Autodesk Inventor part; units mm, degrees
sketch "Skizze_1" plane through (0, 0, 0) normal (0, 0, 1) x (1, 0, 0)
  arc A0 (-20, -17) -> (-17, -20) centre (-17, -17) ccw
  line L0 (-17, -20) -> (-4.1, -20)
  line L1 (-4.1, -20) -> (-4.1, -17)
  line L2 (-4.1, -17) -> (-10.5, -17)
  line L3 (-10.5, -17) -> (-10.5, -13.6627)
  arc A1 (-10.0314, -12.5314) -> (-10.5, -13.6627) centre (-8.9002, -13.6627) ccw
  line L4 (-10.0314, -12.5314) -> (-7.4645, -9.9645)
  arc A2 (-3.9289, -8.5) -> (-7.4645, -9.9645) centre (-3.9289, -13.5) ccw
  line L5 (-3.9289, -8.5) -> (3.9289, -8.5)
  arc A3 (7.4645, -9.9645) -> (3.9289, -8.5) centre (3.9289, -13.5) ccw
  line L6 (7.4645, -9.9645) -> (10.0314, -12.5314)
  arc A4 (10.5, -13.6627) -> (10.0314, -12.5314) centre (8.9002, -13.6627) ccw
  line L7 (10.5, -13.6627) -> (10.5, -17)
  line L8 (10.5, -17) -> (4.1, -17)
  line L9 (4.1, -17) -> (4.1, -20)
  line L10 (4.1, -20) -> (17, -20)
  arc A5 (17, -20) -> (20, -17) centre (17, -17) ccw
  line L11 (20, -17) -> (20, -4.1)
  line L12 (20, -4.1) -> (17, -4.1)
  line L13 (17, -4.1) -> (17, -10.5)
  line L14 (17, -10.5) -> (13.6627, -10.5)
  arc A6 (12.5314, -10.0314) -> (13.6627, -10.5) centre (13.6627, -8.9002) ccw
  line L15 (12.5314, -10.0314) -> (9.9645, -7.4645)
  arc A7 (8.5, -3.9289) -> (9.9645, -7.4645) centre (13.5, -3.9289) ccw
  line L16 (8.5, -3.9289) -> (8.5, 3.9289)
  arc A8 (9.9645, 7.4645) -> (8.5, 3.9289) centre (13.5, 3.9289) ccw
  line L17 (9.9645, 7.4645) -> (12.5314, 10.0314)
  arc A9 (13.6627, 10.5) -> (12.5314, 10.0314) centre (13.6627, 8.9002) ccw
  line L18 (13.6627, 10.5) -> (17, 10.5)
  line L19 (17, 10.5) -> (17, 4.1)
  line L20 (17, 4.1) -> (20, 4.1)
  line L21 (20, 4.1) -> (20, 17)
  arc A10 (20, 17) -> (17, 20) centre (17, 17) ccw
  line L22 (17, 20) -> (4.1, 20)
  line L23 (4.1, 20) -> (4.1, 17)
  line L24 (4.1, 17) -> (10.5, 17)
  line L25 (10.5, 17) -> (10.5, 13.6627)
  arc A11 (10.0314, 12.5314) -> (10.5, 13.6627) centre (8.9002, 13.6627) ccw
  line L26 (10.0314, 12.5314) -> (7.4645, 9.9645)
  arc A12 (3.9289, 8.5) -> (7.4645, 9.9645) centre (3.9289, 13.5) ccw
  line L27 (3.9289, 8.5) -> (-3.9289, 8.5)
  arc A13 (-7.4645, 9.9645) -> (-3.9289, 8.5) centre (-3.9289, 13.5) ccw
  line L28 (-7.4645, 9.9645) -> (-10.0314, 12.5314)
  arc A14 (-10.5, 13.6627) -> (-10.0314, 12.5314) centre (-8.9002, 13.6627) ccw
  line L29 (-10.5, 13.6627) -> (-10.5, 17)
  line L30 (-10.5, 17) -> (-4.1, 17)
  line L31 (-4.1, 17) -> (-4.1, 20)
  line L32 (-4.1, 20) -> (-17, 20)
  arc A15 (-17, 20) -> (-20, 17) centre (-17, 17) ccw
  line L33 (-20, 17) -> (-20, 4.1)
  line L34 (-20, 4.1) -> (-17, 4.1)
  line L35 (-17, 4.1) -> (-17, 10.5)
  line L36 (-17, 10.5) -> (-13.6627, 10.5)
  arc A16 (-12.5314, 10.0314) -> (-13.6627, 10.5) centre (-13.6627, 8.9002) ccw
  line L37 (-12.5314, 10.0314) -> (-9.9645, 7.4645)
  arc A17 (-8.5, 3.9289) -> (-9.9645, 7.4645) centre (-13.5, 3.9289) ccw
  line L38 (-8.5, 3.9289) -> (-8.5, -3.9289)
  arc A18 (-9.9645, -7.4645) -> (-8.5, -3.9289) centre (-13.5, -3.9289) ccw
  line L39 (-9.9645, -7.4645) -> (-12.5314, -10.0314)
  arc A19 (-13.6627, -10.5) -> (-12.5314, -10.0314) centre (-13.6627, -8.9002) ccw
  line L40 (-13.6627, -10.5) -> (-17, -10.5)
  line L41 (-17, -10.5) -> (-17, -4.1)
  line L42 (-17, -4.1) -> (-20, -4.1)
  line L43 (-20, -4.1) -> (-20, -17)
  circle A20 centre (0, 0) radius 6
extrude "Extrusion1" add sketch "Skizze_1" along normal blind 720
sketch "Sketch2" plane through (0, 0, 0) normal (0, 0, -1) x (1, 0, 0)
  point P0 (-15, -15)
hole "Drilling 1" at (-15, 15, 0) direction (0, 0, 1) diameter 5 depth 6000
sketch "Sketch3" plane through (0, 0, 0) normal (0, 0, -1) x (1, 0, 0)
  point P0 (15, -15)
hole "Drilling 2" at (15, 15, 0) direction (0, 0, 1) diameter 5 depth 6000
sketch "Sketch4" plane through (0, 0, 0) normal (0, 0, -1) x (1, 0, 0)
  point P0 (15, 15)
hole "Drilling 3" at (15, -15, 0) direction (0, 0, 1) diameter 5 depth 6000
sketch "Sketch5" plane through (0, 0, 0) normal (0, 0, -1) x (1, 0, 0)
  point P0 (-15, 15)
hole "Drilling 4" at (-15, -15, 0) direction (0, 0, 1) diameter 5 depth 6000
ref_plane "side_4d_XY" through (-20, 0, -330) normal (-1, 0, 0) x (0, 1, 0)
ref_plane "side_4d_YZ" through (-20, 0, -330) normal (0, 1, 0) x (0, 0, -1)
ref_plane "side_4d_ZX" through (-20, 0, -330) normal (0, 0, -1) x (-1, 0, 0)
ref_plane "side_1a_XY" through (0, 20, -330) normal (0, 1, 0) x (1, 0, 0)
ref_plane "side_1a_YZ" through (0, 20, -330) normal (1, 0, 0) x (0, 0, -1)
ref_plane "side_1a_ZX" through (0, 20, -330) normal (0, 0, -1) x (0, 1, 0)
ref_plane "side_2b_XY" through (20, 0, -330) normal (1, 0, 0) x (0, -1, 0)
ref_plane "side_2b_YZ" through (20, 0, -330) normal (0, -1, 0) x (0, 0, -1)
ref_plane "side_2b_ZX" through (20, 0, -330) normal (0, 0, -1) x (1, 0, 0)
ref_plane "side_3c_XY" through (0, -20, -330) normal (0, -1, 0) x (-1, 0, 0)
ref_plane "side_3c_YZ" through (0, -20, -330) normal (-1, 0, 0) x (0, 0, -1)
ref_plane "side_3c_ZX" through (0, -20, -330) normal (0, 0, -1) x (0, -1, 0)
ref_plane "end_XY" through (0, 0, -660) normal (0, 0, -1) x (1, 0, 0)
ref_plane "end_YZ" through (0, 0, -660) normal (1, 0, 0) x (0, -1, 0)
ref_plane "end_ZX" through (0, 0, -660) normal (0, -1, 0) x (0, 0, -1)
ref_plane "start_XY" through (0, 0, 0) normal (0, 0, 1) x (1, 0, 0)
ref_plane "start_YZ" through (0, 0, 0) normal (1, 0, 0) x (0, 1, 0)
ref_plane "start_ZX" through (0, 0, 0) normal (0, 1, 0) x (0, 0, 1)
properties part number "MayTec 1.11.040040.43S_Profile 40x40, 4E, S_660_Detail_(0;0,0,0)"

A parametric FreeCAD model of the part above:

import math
import FreeCAD as App
import Part
import Sketcher
from FreeCAD import Vector

doc = App.newDocument("Part")
params = doc.addObject("Spreadsheet::Sheet", "Params")
for row, (alias, value) in enumerate([
    ("sketch1_diameter", "12 mm"),
    ("sketch1_radius", "3 mm"),
    ("sketch1_radius2", "5 mm"),
    ("sketch1_width", "12.9 mm"),
    ("sketch1_width2", "6.4 mm"),
    ("pad1_length", "720 mm"),
    ("sketch2_diameter", "5 mm"),
    ("hole_diameter", "5 mm"),
    ("hole_depth", "6000 mm"),
    ("sketch3_diameter", "5 mm"),
    ("hole2_diameter", "5 mm"),
    ("hole2_depth", "6000 mm"),
    ("sketch4_diameter", "5 mm"),
    ("hole3_diameter", "5 mm"),
    ("hole3_depth", "6000 mm"),
    ("sketch5_diameter", "5 mm"),
    ("hole4_diameter", "5 mm"),
    ("hole4_depth", "6000 mm"),
], start=1):
    params.set(f"A{row}", alias)
    params.set(f"B{row}", "=" + value)
    params.setAlias(f"B{row}", alias)

body = doc.addObject("PartDesign::Body", "Body")

sketch1 = body.newObject("Sketcher::SketchObject", "Sketch")
sketch1.AttachmentSupport = (doc.getObject("XY_Plane"), [""])
sketch1.MapMode = "FlatFace"
sketch1.addGeometry([
    Part.LineSegment(Vector(-20, -4.1, 0), Vector(-20, -17, 0)),
    Part.ArcOfCircle(Part.Circle(Vector(-17, -17, 0), Vector(0, 0, 1), 3), math.radians(180), math.radians(270)),
    Part.LineSegment(Vector(-17, -20, 0), Vector(-4.1, -20, 0)),
    Part.LineSegment(Vector(-4.1, -20, 0), Vector(-4.1, -17, 0)),
    Part.LineSegment(Vector(-4.1, -17, 0), Vector(-10.5, -17, 0)),
    Part.LineSegment(Vector(-10.5, -17, 0), Vector(-10.5, -13.7, 0)),
    Part.ArcOfCircle(Part.Circle(Vector(-8.9, -13.7, 0), Vector(0, 0, 1), 1.6), math.radians(135), math.radians(180)),
    Part.LineSegment(Vector(-10, -12.5, 0), Vector(-7.5, -10, 0)),
    Part.ArcOfCircle(Part.Circle(Vector(-3.9, -13.5, 0), Vector(0, 0, 1), 5), math.radians(90), math.radians(135)),
    Part.LineSegment(Vector(-3.9, -8.5, 0), Vector(3.9, -8.5, 0)),
    Part.ArcOfCircle(Part.Circle(Vector(3.9, -13.5, 0), Vector(0, 0, 1), 5), math.radians(45), math.radians(90)),
    Part.LineSegment(Vector(7.5, -10, 0), Vector(10, -12.5, 0)),
    Part.ArcOfCircle(Part.Circle(Vector(8.9, -13.7, 0), Vector(0, 0, 1), 1.6), math.radians(0), math.radians(45)),
    Part.LineSegment(Vector(10.5, -13.7, 0), Vector(10.5, -17, 0)),
    Part.LineSegment(Vector(10.5, -17, 0), Vector(4.1, -17, 0)),
    Part.LineSegment(Vector(4.1, -17, 0), Vector(4.1, -20, 0)),
    Part.LineSegment(Vector(4.1, -20, 0), Vector(17, -20, 0)),
    Part.ArcOfCircle(Part.Circle(Vector(17, -17, 0), Vector(0, 0, 1), 3), math.radians(-90), math.radians(0)),
    Part.LineSegment(Vector(20, -17, 0), Vector(20, -4.1, 0)),
    Part.LineSegment(Vector(20, -4.1, 0), Vector(17, -4.1, 0)),
    Part.LineSegment(Vector(17, -4.1, 0), Vector(17, -10.5, 0)),
    Part.LineSegment(Vector(17, -10.5, 0), Vector(13.7, -10.5, 0)),
    Part.ArcOfCircle(Part.Circle(Vector(13.7, -8.9, 0), Vector(0, 0, 1), 1.6), math.radians(-135), math.radians(-90)),
    Part.LineSegment(Vector(12.5, -10, 0), Vector(10, -7.5, 0)),
    Part.ArcOfCircle(Part.Circle(Vector(13.5, -3.9, 0), Vector(0, 0, 1), 5), math.radians(180), math.radians(225)),
    Part.LineSegment(Vector(8.5, -3.9, 0), Vector(8.5, 3.9, 0)),
    Part.ArcOfCircle(Part.Circle(Vector(13.5, 3.9, 0), Vector(0, 0, 1), 5), math.radians(135), math.radians(180)),
    Part.LineSegment(Vector(10, 7.5, 0), Vector(12.5, 10, 0)),
    Part.ArcOfCircle(Part.Circle(Vector(13.7, 8.9, 0), Vector(0, 0, 1), 1.6), math.radians(90), math.radians(135)),
    Part.LineSegment(Vector(13.7, 10.5, 0), Vector(17, 10.5, 0)),
    Part.LineSegment(Vector(17, 10.5, 0), Vector(17, 4.1, 0)),
    Part.LineSegment(Vector(17, 4.1, 0), Vector(20, 4.1, 0)),
    Part.LineSegment(Vector(20, 4.1, 0), Vector(20, 17, 0)),
    Part.ArcOfCircle(Part.Circle(Vector(17, 17, 0), Vector(0, 0, 1), 3), math.radians(0), math.radians(90)),
    Part.LineSegment(Vector(17, 20, 0), Vector(4.1, 20, 0)),
    Part.LineSegment(Vector(4.1, 20, 0), Vector(4.1, 17, 0)),
    Part.LineSegment(Vector(4.1, 17, 0), Vector(10.5, 17, 0)),
    Part.LineSegment(Vector(10.5, 17, 0), Vector(10.5, 13.7, 0)),
    Part.ArcOfCircle(Part.Circle(Vector(8.9, 13.7, 0), Vector(0, 0, 1), 1.6), math.radians(-45), math.radians(0)),
    Part.LineSegment(Vector(10, 12.5, 0), Vector(7.5, 10, 0)),
    Part.ArcOfCircle(Part.Circle(Vector(3.9, 13.5, 0), Vector(0, 0, 1), 5), math.radians(-90), math.radians(-45)),
    Part.LineSegment(Vector(3.9, 8.5, 0), Vector(-3.9, 8.5, 0)),
    Part.ArcOfCircle(Part.Circle(Vector(-3.9, 13.5, 0), Vector(0, 0, 1), 5), math.radians(-135), math.radians(-90)),
    Part.LineSegment(Vector(-7.5, 10, 0), Vector(-10, 12.5, 0)),
    Part.ArcOfCircle(Part.Circle(Vector(-8.9, 13.7, 0), Vector(0, 0, 1), 1.6), math.radians(180), math.radians(225)),
    Part.LineSegment(Vector(-10.5, 13.7, 0), Vector(-10.5, 17, 0)),
    Part.LineSegment(Vector(-10.5, 17, 0), Vector(-4.1, 17, 0)),
    Part.LineSegment(Vector(-4.1, 17, 0), Vector(-4.1, 20, 0)),
    Part.LineSegment(Vector(-4.1, 20, 0), Vector(-17, 20, 0)),
    Part.ArcOfCircle(Part.Circle(Vector(-17, 17, 0), Vector(0, 0, 1), 3), math.radians(90), math.radians(180)),
    Part.LineSegment(Vector(-20, 17, 0), Vector(-20, 4.1, 0)),
    Part.LineSegment(Vector(-20, 4.1, 0), Vector(-17, 4.1, 0)),
    Part.LineSegment(Vector(-17, 4.1, 0), Vector(-17, 10.5, 0)),
    Part.LineSegment(Vector(-17, 10.5, 0), Vector(-13.7, 10.5, 0)),
    Part.ArcOfCircle(Part.Circle(Vector(-13.7, 8.9, 0), Vector(0, 0, 1), 1.6), math.radians(45), math.radians(90)),
    Part.LineSegment(Vector(-12.5, 10, 0), Vector(-10, 7.5, 0)),
    Part.ArcOfCircle(Part.Circle(Vector(-13.5, 3.9, 0), Vector(0, 0, 1), 5), math.radians(0), math.radians(45)),
    Part.LineSegment(Vector(-8.5, 3.9, 0), Vector(-8.5, -3.9, 0)),
    Part.ArcOfCircle(Part.Circle(Vector(-13.5, -3.9, 0), Vector(0, 0, 1), 5), math.radians(-45), math.radians(0)),
    Part.LineSegment(Vector(-10, -7.5, 0), Vector(-12.5, -10, 0)),
    Part.ArcOfCircle(Part.Circle(Vector(-13.7, -8.9, 0), Vector(0, 0, 1), 1.6), math.radians(-90), math.radians(-45)),
    Part.LineSegment(Vector(-13.7, -10.5, 0), Vector(-17, -10.5, 0)),
    Part.LineSegment(Vector(-17, -10.5, 0), Vector(-17, -4.1, 0)),
    Part.LineSegment(Vector(-17, -4.1, 0), Vector(-20, -4.1, 0)),
    Part.Circle(Vector(0, 0, 0), Vector(0, 0, 1), 6),
], False)
sketch1.addConstraint([
    Sketcher.Constraint("Tangent", 0, 2, 1, 1),
    Sketcher.Constraint("Tangent", 1, 2, 2, 1),
    Sketcher.Constraint("Coincident", 2, 2, 3, 1),
    Sketcher.Constraint("Coincident", 3, 2, 4, 1),
    Sketcher.Constraint("Coincident", 4, 2, 5, 1),
    Sketcher.Constraint("Tangent", 5, 2, 6, 2),
    Sketcher.Constraint("Tangent", 6, 1, 7, 1),
    Sketcher.Constraint("Tangent", 7, 2, 8, 2),
    Sketcher.Constraint("Tangent", 8, 1, 9, 1),
    Sketcher.Constraint("Tangent", 9, 2, 10, 2),
    Sketcher.Constraint("Tangent", 10, 1, 11, 1),
    Sketcher.Constraint("Tangent", 11, 2, 12, 2),
    Sketcher.Constraint("Tangent", 12, 1, 13, 1),
    Sketcher.Constraint("Coincident", 13, 2, 14, 1),
    Sketcher.Constraint("Coincident", 14, 2, 15, 1),
    Sketcher.Constraint("Coincident", 15, 2, 16, 1),
    Sketcher.Constraint("Tangent", 16, 2, 17, 1),
    Sketcher.Constraint("Tangent", 17, 2, 18, 1),
    Sketcher.Constraint("Coincident", 18, 2, 19, 1),
    Sketcher.Constraint("Coincident", 19, 2, 20, 1),
    Sketcher.Constraint("Coincident", 20, 2, 21, 1),
    Sketcher.Constraint("Tangent", 21, 2, 22, 2),
    Sketcher.Constraint("Tangent", 22, 1, 23, 1),
    Sketcher.Constraint("Tangent", 23, 2, 24, 2),
    Sketcher.Constraint("Tangent", 24, 1, 25, 1),
    Sketcher.Constraint("Tangent", 25, 2, 26, 2),
    Sketcher.Constraint("Tangent", 26, 1, 27, 1),
    Sketcher.Constraint("Tangent", 27, 2, 28, 2),
    Sketcher.Constraint("Tangent", 28, 1, 29, 1),
    Sketcher.Constraint("Coincident", 29, 2, 30, 1),
    Sketcher.Constraint("Coincident", 30, 2, 31, 1),
    Sketcher.Constraint("Coincident", 31, 2, 32, 1),
    Sketcher.Constraint("Tangent", 32, 2, 33, 1),
    Sketcher.Constraint("Tangent", 33, 2, 34, 1),
    Sketcher.Constraint("Coincident", 34, 2, 35, 1),
    Sketcher.Constraint("Coincident", 35, 2, 36, 1),
    Sketcher.Constraint("Coincident", 36, 2, 37, 1),
    Sketcher.Constraint("Tangent", 37, 2, 38, 2),
    Sketcher.Constraint("Tangent", 38, 1, 39, 1),
    Sketcher.Constraint("Tangent", 39, 2, 40, 2),
    Sketcher.Constraint("Tangent", 40, 1, 41, 1),
    Sketcher.Constraint("Tangent", 41, 2, 42, 2),
    Sketcher.Constraint("Tangent", 42, 1, 43, 1),
    Sketcher.Constraint("Tangent", 43, 2, 44, 2),
    Sketcher.Constraint("Tangent", 44, 1, 45, 1),
    Sketcher.Constraint("Coincident", 45, 2, 46, 1),
    Sketcher.Constraint("Coincident", 46, 2, 47, 1),
    Sketcher.Constraint("Coincident", 47, 2, 48, 1),
    Sketcher.Constraint("Tangent", 48, 2, 49, 1),
    Sketcher.Constraint("Tangent", 49, 2, 50, 1),
    Sketcher.Constraint("Coincident", 50, 2, 51, 1),
    Sketcher.Constraint("Coincident", 51, 2, 52, 1),
    Sketcher.Constraint("Coincident", 52, 2, 53, 1),
    Sketcher.Constraint("Tangent", 53, 2, 54, 2),
    Sketcher.Constraint("Tangent", 54, 1, 55, 1),
    Sketcher.Constraint("Tangent", 55, 2, 56, 2),
    Sketcher.Constraint("Tangent", 56, 1, 57, 1),
    Sketcher.Constraint("Tangent", 57, 2, 58, 2),
    Sketcher.Constraint("Tangent", 58, 1, 59, 1),
    Sketcher.Constraint("Tangent", 59, 2, 60, 2),
    Sketcher.Constraint("Tangent", 60, 1, 61, 1),
    Sketcher.Constraint("Coincident", 61, 2, 62, 1),
    Sketcher.Constraint("Coincident", 62, 2, 63, 1),
    Sketcher.Constraint("Coincident", 63, 2, 0, 1),
    Sketcher.Constraint("Vertical", 0),
    Sketcher.Constraint("Horizontal", 2),
    Sketcher.Constraint("Vertical", 3),
    Sketcher.Constraint("Horizontal", 4),
    Sketcher.Constraint("Vertical", 5),
    Sketcher.Constraint("Horizontal", 9),
    Sketcher.Constraint("Vertical", 13),
    Sketcher.Constraint("Horizontal", 14),
    Sketcher.Constraint("Vertical", 15),
    Sketcher.Constraint("Horizontal", 16),
    Sketcher.Constraint("Vertical", 18),
    Sketcher.Constraint("Horizontal", 19),
    Sketcher.Constraint("Vertical", 20),
    Sketcher.Constraint("Horizontal", 21),
    Sketcher.Constraint("Vertical", 25),
    Sketcher.Constraint("Horizontal", 29),
    Sketcher.Constraint("Vertical", 30),
    Sketcher.Constraint("Horizontal", 31),
    Sketcher.Constraint("Vertical", 32),
    Sketcher.Constraint("Horizontal", 34),
    Sketcher.Constraint("Vertical", 35),
    Sketcher.Constraint("Horizontal", 36),
    Sketcher.Constraint("Vertical", 37),
    Sketcher.Constraint("Horizontal", 41),
    Sketcher.Constraint("Vertical", 45),
    Sketcher.Constraint("Horizontal", 46),
    Sketcher.Constraint("Vertical", 47),
    Sketcher.Constraint("Horizontal", 48),
    Sketcher.Constraint("Vertical", 50),
    Sketcher.Constraint("Horizontal", 51),
    Sketcher.Constraint("Vertical", 52),
    Sketcher.Constraint("Horizontal", 53),
    Sketcher.Constraint("Vertical", 57),
    Sketcher.Constraint("Horizontal", 61),
    Sketcher.Constraint("Vertical", 62),
    Sketcher.Constraint("Horizontal", 63),
    Sketcher.Constraint("Coincident", 64, 3, -1, 1),
    Sketcher.Constraint("Equal", 8, 10),
    Sketcher.Constraint("Equal", 6, 12),
    Sketcher.Constraint("Equal", 1, 17),
    Sketcher.Constraint("Equal", 12, 22),
    Sketcher.Constraint("Equal", 10, 24),
    Sketcher.Constraint("Equal", 24, 26),
    Sketcher.Constraint("Equal", 22, 28),
    Sketcher.Constraint("Equal", 17, 33),
    Sketcher.Constraint("Equal", 28, 38),
    Sketcher.Constraint("Equal", 26, 40),
    Sketcher.Constraint("Equal", 40, 42),
    Sketcher.Constraint("Equal", 38, 44),
    Sketcher.Constraint("Equal", 33, 49),
    Sketcher.Constraint("Equal", 44, 54),
    Sketcher.Constraint("Equal", 42, 56),
    Sketcher.Constraint("Equal", 56, 58),
    Sketcher.Constraint("Equal", 54, 60),
    Sketcher.Constraint("Symmetric", 1, 3, 33, 3, -1, 1),
    Sketcher.Constraint("Symmetric", 6, 3, 38, 3, -1, 1),
    Sketcher.Constraint("Symmetric", 8, 3, 40, 3, -1, 1),
    Sketcher.Constraint("Symmetric", 12, 3, 44, 3, -1, 1),
    Sketcher.Constraint("Symmetric", 17, 3, 49, 3, -1, 1),
    Sketcher.Constraint("Symmetric", 22, 3, 54, 3, -1, 1),
    Sketcher.Constraint("Symmetric", 24, 3, 56, 3, -1, 1),
    Sketcher.Constraint("Symmetric", 28, 3, 60, 3, -1, 1),
    Sketcher.Constraint("Symmetric", 3, 2, 35, 2, -1, 1),
    Sketcher.Constraint("Symmetric", 14, 2, 46, 2, -1, 1),
    Sketcher.Constraint("Symmetric", 19, 2, 51, 2, -1, 1),
    Sketcher.Constraint("Symmetric", 30, 2, 62, 2, -1, 1),
    Sketcher.Constraint("Symmetric", 6, 3, 12, 3, -2),
    Sketcher.Constraint("Symmetric", 1, 3, 17, 3, -2),
    Sketcher.Constraint("Symmetric", 28, 3, 54, 3, -2),
    Sketcher.Constraint("Symmetric", 3, 2, 14, 2, -2),
    Sketcher.Constraint("Symmetric", 30, 2, 51, 2, -2),
    Sketcher.Constraint("Perpendicular", 7, 11),
    Sketcher.Constraint("Parallel", 11, 23),
    Sketcher.Constraint("Perpendicular", 23, 27),
    Sketcher.Constraint("Perpendicular", 39, 43),
    Sketcher.Constraint("Perpendicular", 55, 59),
    Sketcher.Constraint("Horizontal", 26, 3, 56, 3),
    Sketcher.Constraint("Horizontal", 0, 2, 3, 2),
    Sketcher.Constraint("Vertical", 16, 2, 19, 2),
    Sketcher.Constraint("Equal", 48, 0),
    Sketcher.Constraint("Equal", 61, 5),
    Sketcher.Constraint("Equal", 46, 20),
    Sketcher.Constraint("Equal", 41, 25),
    Sketcher.Constraint("Equal", 11, 23),
    Sketcher.Constraint("Diameter", 64, 12.0),
    Sketcher.Constraint("Radius", 1, 3.0),
    Sketcher.Constraint("Radius", 8, 5.0),
    Sketcher.Constraint("DistanceX", 2, 1, 2, 2, 12.9),
    Sketcher.Constraint("DistanceX", 4, 2, 4, 1, 6.4),
    Sketcher.Constraint("DistanceX", 1, 3, -1, 1, 17.0),
    Sketcher.Constraint("DistanceY", 8, 3, -1, 1, 13.5),
    Sketcher.Constraint("Radius", 6, 1.5998),
    Sketcher.Constraint("DistanceX", 9, 1, 9, 2, 7.8578),
])
sketch1.setExpression("Constraints[148]", "Params.sketch1_diameter")
sketch1.setExpression("Constraints[149]", "Params.sketch1_radius")
sketch1.setExpression("Constraints[150]", "Params.sketch1_radius2")
sketch1.setExpression("Constraints[151]", "Params.sketch1_width")
sketch1.setExpression("Constraints[152]", "Params.sketch1_width2")
pad1 = body.newObject("PartDesign::Pad", "Pad")
pad1.Profile = sketch1
pad1.setExpression("Length", "Params.pad1_length")

sketch2 = body.newObject("Sketcher::SketchObject", "Sketch001")
sketch2.AttachmentSupport = (doc.getObject("XY_Plane"), [""])
sketch2.MapMode = "FlatFace"
sketch2.addGeometry(Part.Circle(Vector(-15, 15, 0), Vector(0, 0, 1), 2.5), False)
sketch2.addConstraint([
    Sketcher.Constraint("Diameter", 0, 5.0),
    Sketcher.Constraint("DistanceX", 0, 3, -1, 1, 15.0),
    Sketcher.Constraint("DistanceY", -1, 1, 0, 3, 15.0),
])
sketch2.setExpression("Constraints[0]", "Params.sketch2_diameter")
doc.recompute()
hole = body.newObject("PartDesign::Hole", "Hole")
hole.Profile = sketch2
hole.ThreadType = "None"
hole.setExpression("Diameter", "Params.hole_diameter")
hole.DepthType = "Dimension"
hole.setExpression("Depth", "Params.hole_depth")
hole.DrillPoint = "Flat"
hole.Reversed = True

sketch3 = body.newObject("Sketcher::SketchObject", "Sketch002")
sketch3.AttachmentSupport = (doc.getObject("XY_Plane"), [""])
sketch3.MapMode = "FlatFace"
sketch3.addGeometry(Part.Circle(Vector(15, 15, 0), Vector(0, 0, 1), 2.5), False)
sketch3.addConstraint([
    Sketcher.Constraint("Diameter", 0, 5.0),
    Sketcher.Constraint("DistanceX", -1, 1, 0, 3, 15.0),
    Sketcher.Constraint("DistanceY", -1, 1, 0, 3, 15.0),
])
sketch3.setExpression("Constraints[0]", "Params.sketch3_diameter")
doc.recompute()
hole2 = body.newObject("PartDesign::Hole", "Hole001")
hole2.Profile = sketch3
hole2.ThreadType = "None"
hole2.setExpression("Diameter", "Params.hole2_diameter")
hole2.DepthType = "Dimension"
hole2.setExpression("Depth", "Params.hole2_depth")
hole2.DrillPoint = "Flat"
hole2.Reversed = True

sketch4 = body.newObject("Sketcher::SketchObject", "Sketch003")
sketch4.AttachmentSupport = (doc.getObject("XY_Plane"), [""])
sketch4.MapMode = "FlatFace"
sketch4.addGeometry(Part.Circle(Vector(15, -15, 0), Vector(0, 0, 1), 2.5), False)
sketch4.addConstraint([
    Sketcher.Constraint("Diameter", 0, 5.0),
    Sketcher.Constraint("DistanceX", -1, 1, 0, 3, 15.0),
    Sketcher.Constraint("DistanceY", 0, 3, -1, 1, 15.0),
])
sketch4.setExpression("Constraints[0]", "Params.sketch4_diameter")
doc.recompute()
hole3 = body.newObject("PartDesign::Hole", "Hole002")
hole3.Profile = sketch4
hole3.ThreadType = "None"
hole3.setExpression("Diameter", "Params.hole3_diameter")
hole3.DepthType = "Dimension"
hole3.setExpression("Depth", "Params.hole3_depth")
hole3.DrillPoint = "Flat"
hole3.Reversed = True

sketch5 = body.newObject("Sketcher::SketchObject", "Sketch004")
sketch5.AttachmentSupport = (doc.getObject("XY_Plane"), [""])
sketch5.MapMode = "FlatFace"
sketch5.addGeometry(Part.Circle(Vector(-15, -15, 0), Vector(0, 0, 1), 2.5), False)
sketch5.addConstraint([
    Sketcher.Constraint("Diameter", 0, 5.0),
    Sketcher.Constraint("DistanceX", 0, 3, -1, 1, 15.0),
    Sketcher.Constraint("DistanceY", 0, 3, -1, 1, 15.0),
])
sketch5.setExpression("Constraints[0]", "Params.sketch5_diameter")
doc.recompute()
hole4 = body.newObject("PartDesign::Hole", "Hole003")
hole4.Profile = sketch5
hole4.ThreadType = "None"
hole4.setExpression("Diameter", "Params.hole4_diameter")
hole4.DepthType = "Dimension"
hole4.setExpression("Depth", "Params.hole4_depth")
hole4.DrillPoint = "Flat"
hole4.Reversed = True

doc.recompute()
